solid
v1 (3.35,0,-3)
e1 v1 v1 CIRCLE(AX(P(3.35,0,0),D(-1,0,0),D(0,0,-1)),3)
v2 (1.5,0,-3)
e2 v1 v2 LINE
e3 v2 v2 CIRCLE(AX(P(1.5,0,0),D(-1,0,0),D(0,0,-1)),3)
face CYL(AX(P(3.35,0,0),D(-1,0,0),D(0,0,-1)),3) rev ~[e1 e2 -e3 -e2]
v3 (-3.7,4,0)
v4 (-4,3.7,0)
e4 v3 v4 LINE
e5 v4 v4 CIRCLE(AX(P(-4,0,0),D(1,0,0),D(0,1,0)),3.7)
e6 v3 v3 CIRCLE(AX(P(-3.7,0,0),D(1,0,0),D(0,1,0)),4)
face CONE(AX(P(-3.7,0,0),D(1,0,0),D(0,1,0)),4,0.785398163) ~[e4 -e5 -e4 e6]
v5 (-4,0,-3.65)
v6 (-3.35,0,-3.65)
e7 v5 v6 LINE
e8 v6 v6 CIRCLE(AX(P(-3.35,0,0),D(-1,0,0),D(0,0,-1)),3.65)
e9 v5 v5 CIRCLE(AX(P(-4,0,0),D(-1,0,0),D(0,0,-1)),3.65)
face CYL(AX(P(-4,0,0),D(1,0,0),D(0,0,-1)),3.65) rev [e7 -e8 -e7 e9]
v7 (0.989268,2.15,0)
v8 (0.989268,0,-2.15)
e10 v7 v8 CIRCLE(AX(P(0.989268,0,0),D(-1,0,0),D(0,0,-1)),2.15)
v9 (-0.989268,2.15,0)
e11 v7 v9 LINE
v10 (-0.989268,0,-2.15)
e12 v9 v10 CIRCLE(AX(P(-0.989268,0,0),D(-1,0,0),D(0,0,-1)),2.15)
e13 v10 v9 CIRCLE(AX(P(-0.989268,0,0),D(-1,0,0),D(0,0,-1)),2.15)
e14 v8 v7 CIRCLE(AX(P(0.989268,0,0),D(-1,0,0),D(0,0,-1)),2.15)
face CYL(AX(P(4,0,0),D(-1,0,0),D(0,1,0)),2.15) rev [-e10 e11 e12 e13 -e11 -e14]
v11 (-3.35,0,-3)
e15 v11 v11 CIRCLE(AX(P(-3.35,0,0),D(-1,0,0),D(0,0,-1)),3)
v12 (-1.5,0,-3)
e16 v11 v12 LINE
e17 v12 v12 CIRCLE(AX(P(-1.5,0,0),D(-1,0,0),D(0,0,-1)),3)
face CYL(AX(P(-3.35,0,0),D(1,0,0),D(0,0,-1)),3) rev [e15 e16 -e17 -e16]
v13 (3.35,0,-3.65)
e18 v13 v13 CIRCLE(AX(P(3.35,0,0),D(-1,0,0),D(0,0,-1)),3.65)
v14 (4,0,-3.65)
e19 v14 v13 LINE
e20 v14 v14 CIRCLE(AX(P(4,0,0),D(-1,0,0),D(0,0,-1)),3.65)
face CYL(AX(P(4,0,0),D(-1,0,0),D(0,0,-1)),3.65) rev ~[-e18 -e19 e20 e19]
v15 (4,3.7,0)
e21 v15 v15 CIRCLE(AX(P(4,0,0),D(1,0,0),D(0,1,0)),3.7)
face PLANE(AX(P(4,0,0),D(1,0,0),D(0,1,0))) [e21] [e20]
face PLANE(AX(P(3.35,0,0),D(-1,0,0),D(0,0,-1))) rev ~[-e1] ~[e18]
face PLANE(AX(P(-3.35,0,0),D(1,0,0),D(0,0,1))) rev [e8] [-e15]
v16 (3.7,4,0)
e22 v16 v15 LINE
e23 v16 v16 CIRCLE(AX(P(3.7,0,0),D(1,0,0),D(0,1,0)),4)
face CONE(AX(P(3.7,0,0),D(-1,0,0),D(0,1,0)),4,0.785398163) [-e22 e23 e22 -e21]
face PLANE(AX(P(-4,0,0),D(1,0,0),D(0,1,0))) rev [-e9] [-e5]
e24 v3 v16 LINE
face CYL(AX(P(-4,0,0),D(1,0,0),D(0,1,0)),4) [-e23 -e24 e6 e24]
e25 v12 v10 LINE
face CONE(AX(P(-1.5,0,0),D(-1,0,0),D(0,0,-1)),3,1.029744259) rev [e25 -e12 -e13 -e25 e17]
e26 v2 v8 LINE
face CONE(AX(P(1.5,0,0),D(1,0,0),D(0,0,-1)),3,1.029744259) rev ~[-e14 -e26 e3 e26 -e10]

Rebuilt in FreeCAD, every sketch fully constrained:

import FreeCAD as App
import Part
import Sketcher
from FreeCAD import Vector
Q = App.Units.Quantity


def edges_at(feature, points):
    """Names of the edges that pass closest to the given points."""
    edges = feature.Shape.Edges
    near = lambda p: min(range(len(edges)), key=lambda i: edges[i].distToShape(Part.Vertex(*p))[0])
    return sorted({f"Edge{near(p) + 1}" for p in points})


def add_polygon(sketch, points):
    """Adds a closed chain of lines whose ends are joined by coincident constraints."""
    first, n = sketch.GeometryCount, len(points)
    for a, b in zip(points, points[1:] + points[:1]):
        sketch.addGeometry(Part.LineSegment(App.Vector(*a, 0), App.Vector(*b, 0)), False)
    for i in range(n):
        sketch.addConstraint(Sketcher.Constraint("Coincident", first + i, 2, first + (i + 1) % n, 1))

doc = App.newDocument("Part")
params = doc.addObject("Spreadsheet::Sheet", "Params")
for row, (alias, value) in enumerate([
    ("sketch1_width", "8 mm"),
    ("sketch1_height", "1.85 mm"),
    ("revolution_angle", "360 deg"),
    ("chamfer_size", "0.3 mm"),
    ("sketch2_diameter", "6 mm"),
    ("hole_diameter", "6 mm"),
    ("hole_depth", "2.5 mm"),
    ("hole_cbore_diameter", "7.3 mm"),
    ("hole_cbore_depth", "0.65 mm"),
], start=1):
    params.set(f"A{row}", alias)
    params.set(f"B{row}", "=" + value)
    params.setAlias(f"B{row}", alias)

body = doc.addObject("PartDesign::Body", "Body")

sketch1 = doc.addObject("Sketcher::SketchObject", "Sketch")
body.addObject(sketch1)
sketch1.AttachmentSupport = (doc.XY_Plane, [""])
sketch1.MapMode = "FlatFace"
add_polygon(sketch1, [(4, 4), (-4, 4), (-4, 2.1), (4, 2.1)])
sketch1.addConstraint(Sketcher.Constraint("Horizontal", 0))
sketch1.addConstraint(Sketcher.Constraint("Vertical", 1))
sketch1.addConstraint(Sketcher.Constraint("Horizontal", 2))
sketch1.addConstraint(Sketcher.Constraint("Vertical", 3))
sketch1.addConstraint(Sketcher.Constraint("DistanceX", 0, 2, 0, 1, Q("8 mm")))
sketch1.addConstraint(Sketcher.Constraint("DistanceX", 0, 2, -1, 1, Q("4 mm")))
sketch1.addConstraint(Sketcher.Constraint("DistanceY", -1, 1, 0, 2, Q("4 mm")))
sketch1.addConstraint(Sketcher.Constraint("DistanceY", 1, 2, 1, 1, Q("1.85 mm")))
sketch1.setExpression("Constraints[8]", "Params.sketch1_width")
sketch1.setExpression("Constraints[11]", "Params.sketch1_height")
revolution = doc.addObject("PartDesign::Revolution", "Revolution")
body.addObject(revolution)
revolution.Profile = sketch1
revolution.ReferenceAxis = (sketch1, ["H_Axis"])
revolution.setExpression("Angle", "Params.revolution_angle")
doc.recompute()

chamfer = doc.addObject("PartDesign::Chamfer", "Chamfer")
body.addObject(chamfer)
chamfer.Base = (revolution, edges_at(revolution, [(4, -4, 0), (-4, -4, 0)]))
chamfer.setExpression("Size", "Params.chamfer_size")

sketch2 = doc.addObject("Sketcher::SketchObject", "Sketch001")
body.addObject(sketch2)
sketch2.AttachmentSupport = (doc.YZ_Plane, [""])
sketch2.MapMode = "FlatFace"
sketch2.AttachmentOffset = App.Placement(Vector(0, 0, 4), App.Rotation())
sketch2.addGeometry(Part.Circle(Vector(0, 0, 0), Vector(0, 0, 1), 3), False)
sketch2.addConstraint(Sketcher.Constraint("Coincident", 0, 3, -1, 1))
sketch2.addConstraint(Sketcher.Constraint("Diameter", 0, Q("6 mm")))
sketch2.setExpression("Constraints[1]", "Params.sketch2_diameter")
doc.recompute()
hole = doc.addObject("PartDesign::Hole", "Hole")
body.addObject(hole)
hole.Profile = sketch2
hole.ThreadType = "None"
hole.setExpression("Diameter", "Params.hole_diameter")
hole.DepthType = "Dimension"
hole.setExpression("Depth", "Params.hole_depth")
hole.DrillPoint = "Angled"
hole.DrillPointAngle = 118
hole.HoleCutType = "Counterbore"
hole.setExpression("HoleCutDiameter", "Params.hole_cbore_diameter")
hole.setExpression("HoleCutDepth", "Params.hole_cbore_depth")
doc.recompute()

mirrored = doc.addObject("PartDesign::Mirrored", "Mirrored")
body.addObject(mirrored)
mirrored.Originals = [hole]
mirrored.MirrorPlane = (doc.YZ_Plane, [""])
body.Tip = mirrored

doc.recompute()
